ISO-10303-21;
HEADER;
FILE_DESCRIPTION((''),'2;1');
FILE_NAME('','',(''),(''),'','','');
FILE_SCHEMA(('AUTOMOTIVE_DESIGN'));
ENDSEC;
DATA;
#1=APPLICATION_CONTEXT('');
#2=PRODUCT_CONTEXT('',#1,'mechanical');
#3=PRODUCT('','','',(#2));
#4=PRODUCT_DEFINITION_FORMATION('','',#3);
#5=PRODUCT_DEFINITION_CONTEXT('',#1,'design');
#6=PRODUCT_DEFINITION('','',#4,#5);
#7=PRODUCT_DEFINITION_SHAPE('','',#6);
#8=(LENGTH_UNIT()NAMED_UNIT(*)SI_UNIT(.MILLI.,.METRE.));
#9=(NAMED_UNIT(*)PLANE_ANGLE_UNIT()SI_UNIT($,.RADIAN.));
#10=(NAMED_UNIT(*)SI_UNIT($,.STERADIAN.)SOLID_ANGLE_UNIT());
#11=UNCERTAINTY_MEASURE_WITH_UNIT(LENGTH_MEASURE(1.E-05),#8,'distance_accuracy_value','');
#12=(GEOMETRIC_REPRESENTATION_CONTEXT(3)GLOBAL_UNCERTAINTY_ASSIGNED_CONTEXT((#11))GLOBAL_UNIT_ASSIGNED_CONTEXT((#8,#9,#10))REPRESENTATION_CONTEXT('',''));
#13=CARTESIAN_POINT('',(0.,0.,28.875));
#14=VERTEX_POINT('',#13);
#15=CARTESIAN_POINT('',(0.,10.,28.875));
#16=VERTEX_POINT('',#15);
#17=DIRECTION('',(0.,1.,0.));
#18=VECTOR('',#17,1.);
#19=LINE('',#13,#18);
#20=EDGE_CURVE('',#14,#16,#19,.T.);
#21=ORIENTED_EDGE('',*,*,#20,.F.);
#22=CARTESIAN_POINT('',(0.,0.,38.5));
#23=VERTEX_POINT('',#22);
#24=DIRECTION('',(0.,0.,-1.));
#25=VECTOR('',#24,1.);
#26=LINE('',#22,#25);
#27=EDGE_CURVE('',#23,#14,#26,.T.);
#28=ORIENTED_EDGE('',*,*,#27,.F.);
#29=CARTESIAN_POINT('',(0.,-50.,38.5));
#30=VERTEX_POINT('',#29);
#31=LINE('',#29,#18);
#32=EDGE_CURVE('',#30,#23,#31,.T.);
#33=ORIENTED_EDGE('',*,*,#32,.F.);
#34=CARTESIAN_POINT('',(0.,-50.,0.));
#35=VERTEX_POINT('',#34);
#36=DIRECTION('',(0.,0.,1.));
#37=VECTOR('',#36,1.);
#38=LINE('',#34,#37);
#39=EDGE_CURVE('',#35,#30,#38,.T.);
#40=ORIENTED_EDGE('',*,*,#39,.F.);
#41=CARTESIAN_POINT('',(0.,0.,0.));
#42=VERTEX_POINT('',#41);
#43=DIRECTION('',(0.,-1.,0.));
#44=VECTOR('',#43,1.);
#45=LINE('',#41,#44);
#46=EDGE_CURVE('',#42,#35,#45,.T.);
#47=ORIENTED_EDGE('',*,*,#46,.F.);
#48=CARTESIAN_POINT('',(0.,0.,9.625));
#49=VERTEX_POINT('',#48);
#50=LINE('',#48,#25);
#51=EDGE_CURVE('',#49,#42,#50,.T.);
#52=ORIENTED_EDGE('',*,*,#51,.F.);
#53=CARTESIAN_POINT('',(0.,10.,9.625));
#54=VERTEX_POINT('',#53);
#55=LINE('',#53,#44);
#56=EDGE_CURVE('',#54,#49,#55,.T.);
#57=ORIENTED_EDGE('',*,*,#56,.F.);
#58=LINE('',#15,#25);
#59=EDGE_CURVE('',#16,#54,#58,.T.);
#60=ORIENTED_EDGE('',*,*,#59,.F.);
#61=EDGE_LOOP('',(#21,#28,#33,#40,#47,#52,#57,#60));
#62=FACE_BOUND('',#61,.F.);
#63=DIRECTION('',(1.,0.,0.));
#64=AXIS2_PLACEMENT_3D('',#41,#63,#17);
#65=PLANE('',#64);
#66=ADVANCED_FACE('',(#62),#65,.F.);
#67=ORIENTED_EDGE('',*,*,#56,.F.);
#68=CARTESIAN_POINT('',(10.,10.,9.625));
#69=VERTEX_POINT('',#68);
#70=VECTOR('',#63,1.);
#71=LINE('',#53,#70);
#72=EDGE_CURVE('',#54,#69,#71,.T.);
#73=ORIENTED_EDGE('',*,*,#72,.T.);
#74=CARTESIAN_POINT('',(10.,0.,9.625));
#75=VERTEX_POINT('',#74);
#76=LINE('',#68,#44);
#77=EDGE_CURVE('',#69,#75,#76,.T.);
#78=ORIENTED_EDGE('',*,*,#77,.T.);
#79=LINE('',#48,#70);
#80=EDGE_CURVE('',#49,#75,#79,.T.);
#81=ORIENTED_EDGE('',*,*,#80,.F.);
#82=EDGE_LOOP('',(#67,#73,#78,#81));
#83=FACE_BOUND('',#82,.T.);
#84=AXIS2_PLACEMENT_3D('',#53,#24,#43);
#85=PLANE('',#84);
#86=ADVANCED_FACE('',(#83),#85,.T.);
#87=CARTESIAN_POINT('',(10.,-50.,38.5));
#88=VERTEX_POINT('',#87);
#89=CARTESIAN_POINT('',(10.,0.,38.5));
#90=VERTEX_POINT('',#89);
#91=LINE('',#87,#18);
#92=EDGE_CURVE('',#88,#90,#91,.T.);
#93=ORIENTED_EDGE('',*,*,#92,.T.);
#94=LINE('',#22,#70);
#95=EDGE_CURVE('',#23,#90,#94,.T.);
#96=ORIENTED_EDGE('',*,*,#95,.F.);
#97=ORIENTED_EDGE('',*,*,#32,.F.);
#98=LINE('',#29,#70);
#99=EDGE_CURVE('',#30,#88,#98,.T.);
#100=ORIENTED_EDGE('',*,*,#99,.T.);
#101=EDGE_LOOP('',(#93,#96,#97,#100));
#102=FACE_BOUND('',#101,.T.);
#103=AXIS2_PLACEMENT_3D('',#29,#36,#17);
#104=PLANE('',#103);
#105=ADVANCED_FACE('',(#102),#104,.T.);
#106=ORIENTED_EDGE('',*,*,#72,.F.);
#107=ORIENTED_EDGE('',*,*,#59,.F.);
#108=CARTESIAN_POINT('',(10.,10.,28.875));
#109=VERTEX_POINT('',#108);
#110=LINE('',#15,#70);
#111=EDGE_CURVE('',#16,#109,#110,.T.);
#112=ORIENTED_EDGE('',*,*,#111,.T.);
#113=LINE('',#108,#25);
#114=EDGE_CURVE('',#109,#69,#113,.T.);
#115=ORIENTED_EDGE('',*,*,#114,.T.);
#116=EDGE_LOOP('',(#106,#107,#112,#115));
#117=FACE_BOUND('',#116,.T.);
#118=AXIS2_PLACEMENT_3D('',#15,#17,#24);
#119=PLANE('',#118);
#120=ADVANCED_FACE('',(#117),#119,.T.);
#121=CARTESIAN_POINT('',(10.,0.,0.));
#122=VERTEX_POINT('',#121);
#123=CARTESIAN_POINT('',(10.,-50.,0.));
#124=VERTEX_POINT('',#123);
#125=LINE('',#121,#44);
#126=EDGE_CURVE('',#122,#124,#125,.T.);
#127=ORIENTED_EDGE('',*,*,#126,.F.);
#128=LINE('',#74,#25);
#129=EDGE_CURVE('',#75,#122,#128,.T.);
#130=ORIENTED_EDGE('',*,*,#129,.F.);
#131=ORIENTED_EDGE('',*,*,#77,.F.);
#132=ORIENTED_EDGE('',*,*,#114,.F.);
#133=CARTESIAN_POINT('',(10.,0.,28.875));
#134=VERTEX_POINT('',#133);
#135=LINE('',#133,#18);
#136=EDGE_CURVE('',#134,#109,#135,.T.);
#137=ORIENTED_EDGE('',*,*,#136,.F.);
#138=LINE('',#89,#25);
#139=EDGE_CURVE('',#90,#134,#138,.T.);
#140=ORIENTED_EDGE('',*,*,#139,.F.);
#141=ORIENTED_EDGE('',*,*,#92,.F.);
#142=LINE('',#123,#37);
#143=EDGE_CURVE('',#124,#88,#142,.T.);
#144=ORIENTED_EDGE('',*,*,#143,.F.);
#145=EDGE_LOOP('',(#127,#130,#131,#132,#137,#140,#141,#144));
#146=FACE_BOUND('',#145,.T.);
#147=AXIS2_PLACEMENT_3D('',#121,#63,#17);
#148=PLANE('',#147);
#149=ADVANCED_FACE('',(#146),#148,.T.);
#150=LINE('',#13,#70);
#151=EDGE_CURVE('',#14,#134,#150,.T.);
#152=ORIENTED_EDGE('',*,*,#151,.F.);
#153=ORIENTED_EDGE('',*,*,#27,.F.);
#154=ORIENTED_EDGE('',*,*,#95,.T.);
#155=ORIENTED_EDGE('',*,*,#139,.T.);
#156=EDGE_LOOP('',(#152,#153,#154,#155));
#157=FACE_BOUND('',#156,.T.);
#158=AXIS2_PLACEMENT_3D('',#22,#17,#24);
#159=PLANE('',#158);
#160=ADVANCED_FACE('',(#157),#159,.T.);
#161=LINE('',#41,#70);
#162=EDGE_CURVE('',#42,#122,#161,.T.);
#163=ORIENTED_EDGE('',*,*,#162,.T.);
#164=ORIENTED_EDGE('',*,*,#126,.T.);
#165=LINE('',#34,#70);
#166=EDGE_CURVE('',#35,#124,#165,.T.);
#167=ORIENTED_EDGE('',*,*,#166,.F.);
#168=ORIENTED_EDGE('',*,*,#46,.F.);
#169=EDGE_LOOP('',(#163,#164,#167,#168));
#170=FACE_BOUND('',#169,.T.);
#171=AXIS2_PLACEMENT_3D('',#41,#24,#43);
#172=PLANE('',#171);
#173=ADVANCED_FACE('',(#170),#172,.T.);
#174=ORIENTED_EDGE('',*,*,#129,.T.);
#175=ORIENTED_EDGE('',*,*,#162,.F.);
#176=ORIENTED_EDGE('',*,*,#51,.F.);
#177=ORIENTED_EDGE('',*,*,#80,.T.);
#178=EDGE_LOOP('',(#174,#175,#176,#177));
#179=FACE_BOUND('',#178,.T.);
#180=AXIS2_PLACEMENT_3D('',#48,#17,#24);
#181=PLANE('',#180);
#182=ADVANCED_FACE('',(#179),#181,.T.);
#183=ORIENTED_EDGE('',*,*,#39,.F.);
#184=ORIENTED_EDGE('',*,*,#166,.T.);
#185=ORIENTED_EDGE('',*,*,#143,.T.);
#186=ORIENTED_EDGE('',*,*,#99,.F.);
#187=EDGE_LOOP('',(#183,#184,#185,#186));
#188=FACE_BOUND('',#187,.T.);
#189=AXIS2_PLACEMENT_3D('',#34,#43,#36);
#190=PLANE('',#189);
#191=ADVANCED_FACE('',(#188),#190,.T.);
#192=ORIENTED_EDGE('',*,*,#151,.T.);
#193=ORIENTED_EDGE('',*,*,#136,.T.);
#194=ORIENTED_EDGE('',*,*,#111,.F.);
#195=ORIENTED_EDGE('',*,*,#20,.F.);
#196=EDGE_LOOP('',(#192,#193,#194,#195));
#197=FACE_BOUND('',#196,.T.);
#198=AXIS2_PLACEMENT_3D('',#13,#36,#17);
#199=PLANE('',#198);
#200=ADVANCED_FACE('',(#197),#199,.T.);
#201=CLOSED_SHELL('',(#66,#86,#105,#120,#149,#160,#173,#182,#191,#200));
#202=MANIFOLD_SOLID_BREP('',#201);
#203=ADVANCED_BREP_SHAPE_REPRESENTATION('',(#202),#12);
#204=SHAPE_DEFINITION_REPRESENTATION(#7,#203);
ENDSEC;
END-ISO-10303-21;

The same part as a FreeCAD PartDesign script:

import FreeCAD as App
import Part
import Sketcher

V = App.Vector
Q = App.Units.Quantity


def add_polygon(sketch, points):
    """Adds a closed chain of lines whose ends are joined by coincident constraints."""
    first, n = sketch.GeometryCount, len(points)
    for a, b in zip(points, points[1:] + points[:1]):
        sketch.addGeometry(Part.LineSegment(App.Vector(*a, 0), App.Vector(*b, 0)), False)
    for i in range(n):
        sketch.addConstraint(Sketcher.Constraint("Coincident", first + i, 2, first + (i + 1) % n, 1))

doc = App.newDocument("Part")
body = doc.addObject("PartDesign::Body", "Body")

# Sketch on YZ plane
sketch1 = body.newObject("Sketcher::SketchObject", "Sketch")
sketch1.AttachmentSupport = (doc.getObject("YZ_Plane"), [""])
sketch1.MapMode = "FlatFace"
add_polygon(sketch1, [(-50, 0), (0, 0), (0, 9.625), (10, 9.625), (10, 28.875), (0, 28.875), (0, 38.5), (-50, 38.5)])  # lines 0-7
sketch1.addConstraint(Sketcher.Constraint("Horizontal", 0))
sketch1.addConstraint(Sketcher.Constraint("Vertical", 1))
sketch1.addConstraint(Sketcher.Constraint("Horizontal", 2))
sketch1.addConstraint(Sketcher.Constraint("Vertical", 3))
sketch1.addConstraint(Sketcher.Constraint("Horizontal", 4))
sketch1.addConstraint(Sketcher.Constraint("Vertical", 5))
sketch1.addConstraint(Sketcher.Constraint("Horizontal", 6))
sketch1.addConstraint(Sketcher.Constraint("Vertical", 7))
sketch1.addConstraint(Sketcher.Constraint("Coincident", 0, 2, -1, 1))
sketch1.addConstraint(Sketcher.Constraint("PointOnObject", 4, 2, -2))
sketch1.addConstraint(Sketcher.Constraint("Equal", 1, 5))
sketch1.addConstraint(Sketcher.Constraint("DistanceX", 0, 1, 0, 2, Q("50 mm")))
sketch1.addConstraint(Sketcher.Constraint("DistanceX", 2, 1, 2, 2, Q("10 mm")))
sketch1.addConstraint(Sketcher.Constraint("DistanceY", 7, 2, 7, 1, Q("38.5 mm")))
sketch1.addConstraint(Sketcher.Constraint("DistanceY", 3, 1, 3, 2, Q("19.25 mm")))
pad1 = body.newObject("PartDesign::Pad", "Pad")
pad1.Profile = sketch1
pad1.Length = 10

doc.recompute()
